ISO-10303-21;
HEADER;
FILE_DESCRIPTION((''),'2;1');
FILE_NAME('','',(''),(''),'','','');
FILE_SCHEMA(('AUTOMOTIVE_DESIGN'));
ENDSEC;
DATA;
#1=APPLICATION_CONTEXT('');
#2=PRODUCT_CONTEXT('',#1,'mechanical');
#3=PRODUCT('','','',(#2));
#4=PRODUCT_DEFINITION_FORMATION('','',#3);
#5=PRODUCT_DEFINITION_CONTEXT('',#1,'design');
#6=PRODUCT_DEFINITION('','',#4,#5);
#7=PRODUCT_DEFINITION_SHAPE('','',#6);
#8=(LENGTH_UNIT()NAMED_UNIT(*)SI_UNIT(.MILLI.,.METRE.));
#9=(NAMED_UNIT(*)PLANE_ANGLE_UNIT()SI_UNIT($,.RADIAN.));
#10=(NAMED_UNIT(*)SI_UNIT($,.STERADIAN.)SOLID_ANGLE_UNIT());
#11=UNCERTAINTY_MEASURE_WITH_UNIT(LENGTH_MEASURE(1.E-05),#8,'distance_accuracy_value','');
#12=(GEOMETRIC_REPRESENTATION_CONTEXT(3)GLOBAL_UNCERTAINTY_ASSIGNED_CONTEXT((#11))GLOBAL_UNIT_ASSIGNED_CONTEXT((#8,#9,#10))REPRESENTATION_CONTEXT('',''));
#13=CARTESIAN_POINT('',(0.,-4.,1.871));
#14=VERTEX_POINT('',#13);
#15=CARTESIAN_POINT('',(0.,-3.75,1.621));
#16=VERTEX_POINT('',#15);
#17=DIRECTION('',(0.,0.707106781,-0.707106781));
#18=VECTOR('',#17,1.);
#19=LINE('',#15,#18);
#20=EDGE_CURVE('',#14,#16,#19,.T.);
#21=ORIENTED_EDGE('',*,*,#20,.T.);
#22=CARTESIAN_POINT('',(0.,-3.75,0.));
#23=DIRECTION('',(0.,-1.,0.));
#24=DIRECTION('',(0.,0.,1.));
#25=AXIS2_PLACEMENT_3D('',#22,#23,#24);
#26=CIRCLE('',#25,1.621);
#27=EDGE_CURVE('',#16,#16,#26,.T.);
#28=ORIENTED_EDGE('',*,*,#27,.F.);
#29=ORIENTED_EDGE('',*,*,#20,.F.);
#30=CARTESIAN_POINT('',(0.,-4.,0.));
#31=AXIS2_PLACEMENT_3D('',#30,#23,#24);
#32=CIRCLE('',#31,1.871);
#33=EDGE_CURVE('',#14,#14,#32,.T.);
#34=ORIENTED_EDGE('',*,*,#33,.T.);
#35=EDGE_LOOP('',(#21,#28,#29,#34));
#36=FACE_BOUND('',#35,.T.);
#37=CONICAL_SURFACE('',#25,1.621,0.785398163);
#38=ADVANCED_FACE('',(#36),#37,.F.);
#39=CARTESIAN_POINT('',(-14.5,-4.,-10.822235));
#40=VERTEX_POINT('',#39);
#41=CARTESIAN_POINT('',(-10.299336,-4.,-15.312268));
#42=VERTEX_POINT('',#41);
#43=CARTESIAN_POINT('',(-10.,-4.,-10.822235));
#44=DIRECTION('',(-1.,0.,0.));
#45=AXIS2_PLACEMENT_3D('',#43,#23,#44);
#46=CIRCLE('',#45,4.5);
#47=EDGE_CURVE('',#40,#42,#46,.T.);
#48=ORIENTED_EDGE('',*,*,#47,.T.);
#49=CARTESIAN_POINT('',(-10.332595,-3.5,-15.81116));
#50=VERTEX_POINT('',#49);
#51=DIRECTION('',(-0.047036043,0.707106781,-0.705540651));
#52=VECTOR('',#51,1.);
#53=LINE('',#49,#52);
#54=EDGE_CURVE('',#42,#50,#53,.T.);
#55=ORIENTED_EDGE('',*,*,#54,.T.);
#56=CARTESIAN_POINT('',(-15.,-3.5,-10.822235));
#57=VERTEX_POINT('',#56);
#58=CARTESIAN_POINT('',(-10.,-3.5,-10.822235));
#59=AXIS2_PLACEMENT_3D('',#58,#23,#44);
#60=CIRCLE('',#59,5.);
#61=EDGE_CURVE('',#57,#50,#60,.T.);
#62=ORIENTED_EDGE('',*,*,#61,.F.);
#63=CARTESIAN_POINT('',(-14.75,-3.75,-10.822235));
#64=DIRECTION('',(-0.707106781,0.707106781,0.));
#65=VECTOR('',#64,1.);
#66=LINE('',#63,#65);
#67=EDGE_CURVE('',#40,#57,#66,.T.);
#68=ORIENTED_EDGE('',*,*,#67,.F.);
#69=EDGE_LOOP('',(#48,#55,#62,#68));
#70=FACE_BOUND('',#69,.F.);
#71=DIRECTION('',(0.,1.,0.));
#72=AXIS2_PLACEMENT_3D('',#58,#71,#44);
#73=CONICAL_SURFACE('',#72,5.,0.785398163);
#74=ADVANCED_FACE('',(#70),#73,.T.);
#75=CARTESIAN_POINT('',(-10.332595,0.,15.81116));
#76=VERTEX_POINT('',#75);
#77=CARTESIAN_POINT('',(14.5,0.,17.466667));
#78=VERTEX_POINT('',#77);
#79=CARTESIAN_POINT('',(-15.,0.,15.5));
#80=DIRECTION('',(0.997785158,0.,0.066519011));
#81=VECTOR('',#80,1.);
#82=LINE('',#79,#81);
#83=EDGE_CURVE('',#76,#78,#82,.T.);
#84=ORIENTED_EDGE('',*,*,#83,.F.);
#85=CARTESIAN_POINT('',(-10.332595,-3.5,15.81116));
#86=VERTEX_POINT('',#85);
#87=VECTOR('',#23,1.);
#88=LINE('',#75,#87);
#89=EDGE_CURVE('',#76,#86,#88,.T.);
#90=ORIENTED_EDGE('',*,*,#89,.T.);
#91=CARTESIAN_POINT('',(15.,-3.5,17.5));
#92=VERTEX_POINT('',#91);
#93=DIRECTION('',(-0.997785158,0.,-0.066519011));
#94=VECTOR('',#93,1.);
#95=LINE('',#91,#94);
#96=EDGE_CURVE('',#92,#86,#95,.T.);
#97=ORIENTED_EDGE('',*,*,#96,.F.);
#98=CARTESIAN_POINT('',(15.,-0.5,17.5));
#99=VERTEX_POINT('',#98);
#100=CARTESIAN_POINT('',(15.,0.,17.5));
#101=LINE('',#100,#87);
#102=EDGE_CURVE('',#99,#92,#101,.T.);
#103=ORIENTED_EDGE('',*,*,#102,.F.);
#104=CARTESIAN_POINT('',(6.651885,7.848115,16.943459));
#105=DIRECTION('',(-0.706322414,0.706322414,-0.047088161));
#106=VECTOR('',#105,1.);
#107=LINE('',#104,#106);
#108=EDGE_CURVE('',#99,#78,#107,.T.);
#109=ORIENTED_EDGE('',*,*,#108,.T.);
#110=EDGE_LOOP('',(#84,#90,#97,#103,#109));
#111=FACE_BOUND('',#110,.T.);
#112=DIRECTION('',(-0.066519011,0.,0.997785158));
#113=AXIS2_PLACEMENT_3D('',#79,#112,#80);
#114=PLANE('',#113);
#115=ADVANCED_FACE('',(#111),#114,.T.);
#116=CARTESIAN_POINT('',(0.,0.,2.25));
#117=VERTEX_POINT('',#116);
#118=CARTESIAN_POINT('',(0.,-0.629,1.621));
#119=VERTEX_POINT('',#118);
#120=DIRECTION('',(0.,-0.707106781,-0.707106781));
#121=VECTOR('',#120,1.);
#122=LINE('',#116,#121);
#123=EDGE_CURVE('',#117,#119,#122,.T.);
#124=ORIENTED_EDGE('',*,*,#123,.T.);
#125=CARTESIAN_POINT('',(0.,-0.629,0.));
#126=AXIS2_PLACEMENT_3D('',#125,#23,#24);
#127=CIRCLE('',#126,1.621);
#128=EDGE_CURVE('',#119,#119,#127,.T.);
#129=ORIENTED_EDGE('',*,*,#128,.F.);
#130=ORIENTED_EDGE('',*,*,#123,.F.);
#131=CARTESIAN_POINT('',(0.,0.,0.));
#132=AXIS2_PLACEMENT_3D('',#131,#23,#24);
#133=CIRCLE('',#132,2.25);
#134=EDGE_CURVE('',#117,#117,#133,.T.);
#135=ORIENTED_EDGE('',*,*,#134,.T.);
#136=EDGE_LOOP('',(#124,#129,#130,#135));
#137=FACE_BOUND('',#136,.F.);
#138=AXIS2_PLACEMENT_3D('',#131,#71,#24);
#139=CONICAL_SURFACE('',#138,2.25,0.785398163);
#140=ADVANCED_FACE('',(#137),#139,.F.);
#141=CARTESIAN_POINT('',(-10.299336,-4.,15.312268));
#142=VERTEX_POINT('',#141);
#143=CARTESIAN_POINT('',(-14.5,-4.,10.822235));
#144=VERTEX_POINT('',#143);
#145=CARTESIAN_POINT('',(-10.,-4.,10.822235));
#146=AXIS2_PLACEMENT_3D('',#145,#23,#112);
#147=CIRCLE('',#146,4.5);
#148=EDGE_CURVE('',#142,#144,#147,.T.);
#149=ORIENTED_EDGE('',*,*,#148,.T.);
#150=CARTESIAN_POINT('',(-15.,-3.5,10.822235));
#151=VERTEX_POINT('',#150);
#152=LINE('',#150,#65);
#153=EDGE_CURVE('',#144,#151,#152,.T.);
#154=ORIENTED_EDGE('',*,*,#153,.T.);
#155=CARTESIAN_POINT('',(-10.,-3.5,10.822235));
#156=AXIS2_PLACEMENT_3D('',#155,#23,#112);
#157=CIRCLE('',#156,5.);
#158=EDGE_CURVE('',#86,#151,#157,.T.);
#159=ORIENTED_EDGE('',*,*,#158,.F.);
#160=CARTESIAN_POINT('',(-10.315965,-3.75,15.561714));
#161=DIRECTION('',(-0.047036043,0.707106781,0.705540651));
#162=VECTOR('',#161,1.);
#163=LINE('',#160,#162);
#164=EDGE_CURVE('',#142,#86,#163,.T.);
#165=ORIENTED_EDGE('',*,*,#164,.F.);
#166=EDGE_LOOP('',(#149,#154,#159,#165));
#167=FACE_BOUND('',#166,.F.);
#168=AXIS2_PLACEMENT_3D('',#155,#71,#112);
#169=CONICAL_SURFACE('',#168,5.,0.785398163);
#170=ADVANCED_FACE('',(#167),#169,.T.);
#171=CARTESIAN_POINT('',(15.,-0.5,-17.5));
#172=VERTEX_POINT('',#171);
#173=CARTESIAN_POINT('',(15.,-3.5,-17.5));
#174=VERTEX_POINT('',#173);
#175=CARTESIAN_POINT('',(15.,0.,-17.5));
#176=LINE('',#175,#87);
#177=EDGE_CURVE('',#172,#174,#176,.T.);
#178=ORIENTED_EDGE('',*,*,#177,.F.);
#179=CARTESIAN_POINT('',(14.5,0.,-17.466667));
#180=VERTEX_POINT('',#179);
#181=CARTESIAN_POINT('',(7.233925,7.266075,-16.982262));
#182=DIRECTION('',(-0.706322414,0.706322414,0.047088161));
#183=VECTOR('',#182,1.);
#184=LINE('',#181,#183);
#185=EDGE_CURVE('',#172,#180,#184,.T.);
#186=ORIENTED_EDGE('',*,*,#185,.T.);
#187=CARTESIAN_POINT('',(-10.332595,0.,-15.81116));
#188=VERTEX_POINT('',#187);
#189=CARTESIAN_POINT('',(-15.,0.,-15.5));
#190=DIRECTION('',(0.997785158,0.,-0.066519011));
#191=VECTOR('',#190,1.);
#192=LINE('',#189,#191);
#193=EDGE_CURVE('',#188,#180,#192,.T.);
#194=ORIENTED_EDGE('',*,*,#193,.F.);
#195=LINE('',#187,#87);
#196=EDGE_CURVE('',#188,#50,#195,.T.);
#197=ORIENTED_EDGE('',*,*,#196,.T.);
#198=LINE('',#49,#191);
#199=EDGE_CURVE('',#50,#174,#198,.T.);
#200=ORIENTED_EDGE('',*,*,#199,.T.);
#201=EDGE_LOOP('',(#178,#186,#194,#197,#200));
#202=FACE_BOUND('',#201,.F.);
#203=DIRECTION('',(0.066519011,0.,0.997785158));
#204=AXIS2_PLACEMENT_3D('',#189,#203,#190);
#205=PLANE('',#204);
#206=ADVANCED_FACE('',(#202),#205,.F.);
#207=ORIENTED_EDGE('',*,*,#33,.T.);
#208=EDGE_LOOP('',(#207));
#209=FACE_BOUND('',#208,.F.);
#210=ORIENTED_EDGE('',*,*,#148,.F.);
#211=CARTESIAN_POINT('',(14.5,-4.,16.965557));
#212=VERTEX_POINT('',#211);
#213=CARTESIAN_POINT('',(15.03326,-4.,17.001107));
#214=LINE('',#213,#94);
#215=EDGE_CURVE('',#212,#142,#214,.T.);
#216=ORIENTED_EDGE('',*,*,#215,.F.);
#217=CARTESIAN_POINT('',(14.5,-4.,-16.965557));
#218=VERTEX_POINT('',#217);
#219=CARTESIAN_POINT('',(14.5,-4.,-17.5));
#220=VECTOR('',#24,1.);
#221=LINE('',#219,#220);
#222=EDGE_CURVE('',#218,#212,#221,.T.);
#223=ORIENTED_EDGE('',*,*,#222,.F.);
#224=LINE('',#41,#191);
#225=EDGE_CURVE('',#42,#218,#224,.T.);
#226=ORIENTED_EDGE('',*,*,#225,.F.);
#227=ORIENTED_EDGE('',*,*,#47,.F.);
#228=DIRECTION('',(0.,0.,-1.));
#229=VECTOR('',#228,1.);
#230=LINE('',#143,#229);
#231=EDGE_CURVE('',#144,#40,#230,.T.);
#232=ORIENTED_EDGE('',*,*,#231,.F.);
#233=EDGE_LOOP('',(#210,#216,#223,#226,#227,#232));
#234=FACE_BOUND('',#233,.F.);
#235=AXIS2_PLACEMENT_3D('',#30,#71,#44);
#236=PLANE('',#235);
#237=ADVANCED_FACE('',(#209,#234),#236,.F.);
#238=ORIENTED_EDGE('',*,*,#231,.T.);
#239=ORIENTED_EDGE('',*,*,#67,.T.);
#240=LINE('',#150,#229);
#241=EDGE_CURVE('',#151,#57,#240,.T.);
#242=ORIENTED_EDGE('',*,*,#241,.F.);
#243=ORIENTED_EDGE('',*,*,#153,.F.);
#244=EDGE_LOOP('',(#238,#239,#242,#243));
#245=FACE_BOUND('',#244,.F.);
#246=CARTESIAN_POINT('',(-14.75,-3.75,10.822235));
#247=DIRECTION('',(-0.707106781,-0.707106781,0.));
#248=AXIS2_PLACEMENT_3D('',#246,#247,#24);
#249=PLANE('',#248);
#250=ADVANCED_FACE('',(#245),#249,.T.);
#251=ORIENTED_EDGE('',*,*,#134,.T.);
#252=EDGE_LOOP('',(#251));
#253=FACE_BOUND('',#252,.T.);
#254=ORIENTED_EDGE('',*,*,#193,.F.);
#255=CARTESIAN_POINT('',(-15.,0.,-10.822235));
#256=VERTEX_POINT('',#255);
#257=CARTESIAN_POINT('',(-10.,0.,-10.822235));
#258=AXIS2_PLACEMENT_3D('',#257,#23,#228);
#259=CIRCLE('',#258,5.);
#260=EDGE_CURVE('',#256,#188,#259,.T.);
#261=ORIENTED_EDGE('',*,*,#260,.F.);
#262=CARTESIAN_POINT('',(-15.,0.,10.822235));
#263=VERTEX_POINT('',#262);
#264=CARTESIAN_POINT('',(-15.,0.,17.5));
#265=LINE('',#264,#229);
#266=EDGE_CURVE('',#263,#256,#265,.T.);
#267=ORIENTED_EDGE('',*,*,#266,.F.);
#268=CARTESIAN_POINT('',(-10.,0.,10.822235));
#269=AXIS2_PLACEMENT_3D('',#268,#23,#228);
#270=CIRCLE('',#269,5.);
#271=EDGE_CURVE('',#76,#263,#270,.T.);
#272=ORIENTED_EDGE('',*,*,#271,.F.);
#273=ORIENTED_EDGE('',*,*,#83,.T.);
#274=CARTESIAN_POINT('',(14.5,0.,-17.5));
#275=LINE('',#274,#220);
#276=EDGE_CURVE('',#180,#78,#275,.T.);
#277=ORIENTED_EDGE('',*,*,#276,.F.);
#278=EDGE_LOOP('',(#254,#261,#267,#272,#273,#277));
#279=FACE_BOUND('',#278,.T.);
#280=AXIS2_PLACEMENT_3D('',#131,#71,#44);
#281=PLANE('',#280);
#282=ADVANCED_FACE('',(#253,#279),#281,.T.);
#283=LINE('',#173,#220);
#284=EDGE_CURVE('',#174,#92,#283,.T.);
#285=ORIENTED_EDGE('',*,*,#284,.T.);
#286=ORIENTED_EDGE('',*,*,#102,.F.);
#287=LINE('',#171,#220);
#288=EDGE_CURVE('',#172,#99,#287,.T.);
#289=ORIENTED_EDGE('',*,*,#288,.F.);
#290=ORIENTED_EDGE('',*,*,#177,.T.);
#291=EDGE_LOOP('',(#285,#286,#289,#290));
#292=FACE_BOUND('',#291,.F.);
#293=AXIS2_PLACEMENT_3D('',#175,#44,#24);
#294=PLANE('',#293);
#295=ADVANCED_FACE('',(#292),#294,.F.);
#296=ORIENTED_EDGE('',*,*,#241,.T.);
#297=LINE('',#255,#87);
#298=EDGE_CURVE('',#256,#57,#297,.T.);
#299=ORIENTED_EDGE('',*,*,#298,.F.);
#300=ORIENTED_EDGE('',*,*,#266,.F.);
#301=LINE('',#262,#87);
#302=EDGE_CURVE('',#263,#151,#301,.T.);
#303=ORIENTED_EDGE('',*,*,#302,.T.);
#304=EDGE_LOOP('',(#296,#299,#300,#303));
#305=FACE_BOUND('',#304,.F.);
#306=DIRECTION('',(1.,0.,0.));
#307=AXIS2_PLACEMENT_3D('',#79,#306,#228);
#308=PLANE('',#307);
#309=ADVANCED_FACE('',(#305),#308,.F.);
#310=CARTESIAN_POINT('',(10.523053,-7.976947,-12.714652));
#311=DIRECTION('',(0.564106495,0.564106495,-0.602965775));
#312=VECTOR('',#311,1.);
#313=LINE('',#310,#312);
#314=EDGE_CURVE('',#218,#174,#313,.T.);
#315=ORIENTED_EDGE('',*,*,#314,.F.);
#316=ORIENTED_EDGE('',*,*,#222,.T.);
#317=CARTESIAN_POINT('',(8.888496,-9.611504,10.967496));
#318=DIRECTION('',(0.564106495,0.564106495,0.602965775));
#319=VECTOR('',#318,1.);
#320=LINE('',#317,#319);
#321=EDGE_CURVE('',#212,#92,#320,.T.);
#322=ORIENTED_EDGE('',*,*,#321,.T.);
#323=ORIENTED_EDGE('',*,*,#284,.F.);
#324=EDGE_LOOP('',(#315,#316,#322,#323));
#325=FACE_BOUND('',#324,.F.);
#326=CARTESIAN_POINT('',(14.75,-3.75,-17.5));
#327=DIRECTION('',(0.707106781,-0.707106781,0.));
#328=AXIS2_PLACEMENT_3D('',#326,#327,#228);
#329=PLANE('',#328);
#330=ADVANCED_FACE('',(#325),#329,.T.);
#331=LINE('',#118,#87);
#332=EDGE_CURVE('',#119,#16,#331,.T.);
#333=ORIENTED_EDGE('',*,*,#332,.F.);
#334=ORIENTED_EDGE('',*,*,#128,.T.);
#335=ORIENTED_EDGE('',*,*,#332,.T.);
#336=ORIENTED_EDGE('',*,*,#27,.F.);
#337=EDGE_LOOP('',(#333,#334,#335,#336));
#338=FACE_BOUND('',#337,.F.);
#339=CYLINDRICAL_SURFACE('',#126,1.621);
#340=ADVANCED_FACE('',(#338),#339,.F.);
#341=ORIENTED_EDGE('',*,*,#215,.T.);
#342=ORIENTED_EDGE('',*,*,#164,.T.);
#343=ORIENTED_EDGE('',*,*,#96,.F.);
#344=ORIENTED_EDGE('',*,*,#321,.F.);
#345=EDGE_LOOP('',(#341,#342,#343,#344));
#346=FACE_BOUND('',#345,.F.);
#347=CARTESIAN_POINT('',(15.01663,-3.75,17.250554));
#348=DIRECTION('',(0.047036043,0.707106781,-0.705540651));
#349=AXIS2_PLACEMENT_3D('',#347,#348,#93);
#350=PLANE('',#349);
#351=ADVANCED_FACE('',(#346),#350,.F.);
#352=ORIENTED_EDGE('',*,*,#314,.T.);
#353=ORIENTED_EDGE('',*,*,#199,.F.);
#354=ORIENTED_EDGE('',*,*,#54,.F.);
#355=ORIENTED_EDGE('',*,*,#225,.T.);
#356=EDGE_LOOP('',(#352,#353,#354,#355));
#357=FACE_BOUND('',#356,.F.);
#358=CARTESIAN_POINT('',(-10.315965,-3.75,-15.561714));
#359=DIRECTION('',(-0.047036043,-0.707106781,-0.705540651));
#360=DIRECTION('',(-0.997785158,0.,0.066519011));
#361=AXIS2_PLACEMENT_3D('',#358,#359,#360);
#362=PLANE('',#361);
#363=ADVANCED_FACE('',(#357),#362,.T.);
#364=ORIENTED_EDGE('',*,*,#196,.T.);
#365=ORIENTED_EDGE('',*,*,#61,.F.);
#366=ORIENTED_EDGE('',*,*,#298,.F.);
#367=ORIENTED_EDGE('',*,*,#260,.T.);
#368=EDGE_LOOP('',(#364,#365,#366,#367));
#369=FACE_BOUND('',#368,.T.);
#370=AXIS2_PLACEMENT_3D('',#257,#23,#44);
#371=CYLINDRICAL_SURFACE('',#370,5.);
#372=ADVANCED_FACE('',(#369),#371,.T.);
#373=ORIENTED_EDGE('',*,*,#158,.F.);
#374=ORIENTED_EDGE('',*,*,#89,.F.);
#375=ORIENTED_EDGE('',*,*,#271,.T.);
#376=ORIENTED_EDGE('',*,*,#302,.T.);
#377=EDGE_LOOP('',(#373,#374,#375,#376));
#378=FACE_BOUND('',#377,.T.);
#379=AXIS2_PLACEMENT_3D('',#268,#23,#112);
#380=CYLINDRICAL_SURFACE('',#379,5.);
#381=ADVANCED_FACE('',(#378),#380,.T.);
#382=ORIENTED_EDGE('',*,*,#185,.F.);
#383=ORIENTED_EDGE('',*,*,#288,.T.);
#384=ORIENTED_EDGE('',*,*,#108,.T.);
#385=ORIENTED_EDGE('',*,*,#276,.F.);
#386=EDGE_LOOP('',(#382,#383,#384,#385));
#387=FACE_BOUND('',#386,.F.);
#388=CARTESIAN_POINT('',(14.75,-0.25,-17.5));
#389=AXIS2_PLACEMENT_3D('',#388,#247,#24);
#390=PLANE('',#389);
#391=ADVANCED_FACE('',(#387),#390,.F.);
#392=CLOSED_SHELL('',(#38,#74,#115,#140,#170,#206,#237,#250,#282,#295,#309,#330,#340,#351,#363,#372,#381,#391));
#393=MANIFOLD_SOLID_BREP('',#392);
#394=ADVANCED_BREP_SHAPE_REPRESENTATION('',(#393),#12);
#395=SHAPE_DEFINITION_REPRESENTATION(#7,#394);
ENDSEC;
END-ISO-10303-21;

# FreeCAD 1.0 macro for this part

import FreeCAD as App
import Part
import Sketcher

V = App.Vector


def edges_at(feature, points):
    """Names of the edges that pass closest to the given points."""
    edges = feature.Shape.Edges
    near = lambda p: min(range(len(edges)), key=lambda i: edges[i].distToShape(Part.Vertex(*p))[0])
    return sorted({f"Edge{near(p) + 1}" for p in points})


def add_polygon(sketch, points):
    """Adds a closed chain of lines whose ends are joined by coincident constraints."""
    first, n = sketch.GeometryCount, len(points)
    for a, b in zip(points, points[1:] + points[:1]):
        sketch.addGeometry(Part.LineSegment(App.Vector(*a, 0), App.Vector(*b, 0)), False)
    for i in range(n):
        sketch.addConstraint(Sketcher.Constraint("Coincident", first + i, 2, first + (i + 1) % n, 1))

doc = App.newDocument("Part")
params = doc.addObject("Spreadsheet::Sheet", "Params")
for row, (alias, value) in enumerate([
    ("sketch1_height", "35 mm"),
    ("sketch1_height2", "31 mm"),
    ("pad1_length", "4 mm"),
    ("hole_diameter", "3.242 mm"),
    ("hole_csink_diameter", "4.5 mm"),
    ("chamfer_size", "0.25 mm"),
    ("fillet_radius", "5 mm"),
    ("chamfer2_size", "0.5 mm"),
], start=1):
    params.set(f"A{row}", alias)
    params.set(f"B{row}", "=" + value)
    params.setAlias(f"B{row}", alias)

body = doc.addObject("PartDesign::Body", "Body")

# Sketch on XZ plane
sketch1 = body.newObject("Sketcher::SketchObject", "Sketch")
sketch1.AttachmentSupport = (doc.getObject("XZ_Plane"), [""])
sketch1.MapMode = "FlatFace"
add_polygon(sketch1, [(-15, 16), (15, 18), (15, -18), (-15, -16)])  # lines 0-3
sketch1.addConstraint(Sketcher.Constraint("Vertical", 1))
sketch1.addConstraint(Sketcher.Constraint("Vertical", 3))
sketch1.addConstraint(Sketcher.Constraint("Equal", 0, 2))
sketch1.addConstraint(Sketcher.Constraint("DistanceY", 1, 2, 1, 1, 35.0))
sketch1.addConstraint(Sketcher.Constraint("DistanceY", 3, 1, 3, 2, 31.0))
sketch1.addConstraint(Sketcher.Constraint("DistanceX", 2, 2, 1, 2, 30.0))
sketch1.addConstraint(Sketcher.Constraint("DistanceX", -1, 1, 0, 2, 15.0))
sketch1.addConstraint(Sketcher.Constraint("DistanceY", -1, 1, 0, 2, 17.5))
sketch1.setExpression("Constraints[7]", "Params.sketch1_height")
sketch1.setExpression("Constraints[8]", "Params.sketch1_height2")
pad1 = body.newObject("PartDesign::Pad", "Pad")
pad1.Profile = sketch1
pad1.setExpression("Length", "Params.pad1_length")

# Sketch on XZ plane
sketch2 = body.newObject("Sketcher::SketchObject", "Sketch001")
sketch2.AttachmentSupport = (doc.getObject("XZ_Plane"), [""])
sketch2.MapMode = "FlatFace"
sketch2.addGeometry(Part.Circle(V(0, 0, 0), V(0, 0, 1), 1.6), False)
sketch2.addConstraint(Sketcher.Constraint("Coincident", 0, 3, -1, 1))
sketch2.addConstraint(Sketcher.Constraint("Diameter", 0, 3.242))
doc.recompute()
hole = body.newObject("PartDesign::Hole", "Hole")
hole.Profile = sketch2
hole.ThreadType = "None"
hole.setExpression("Diameter", "Params.hole_diameter")
hole.DepthType = "ThroughAll"
hole.HoleCutType = "Countersink"
hole.setExpression("HoleCutDiameter", "Params.hole_csink_diameter")
hole.HoleCutCountersinkAngle = 90
hole.Reversed = True
doc.recompute()

chamfer = body.newObject("PartDesign::Chamfer", "Chamfer")
chamfer.Base = (hole, edges_at(hole, [(0, -4, -1.621)]))
chamfer.setExpression("Size", "Params.chamfer_size")
doc.recompute()

fillet = body.newObject("PartDesign::Fillet", "Fillet")
fillet.Base = (chamfer, edges_at(chamfer, [(-15, -2, 15.5), (-15, -2, -15.5)]))
fillet.setExpression("Radius", "Params.fillet_radius")
doc.recompute()

chamfer2 = body.newObject("PartDesign::Chamfer", "Chamfer001")
chamfer2.Base = (fillet, edges_at(fillet, [
    (15, 0, 0),
    (-13.651, -4, 14.238),
    (-13.651, -4, -14.238),
    (-15, -4, 0),
    (15, -4, 0),
]))
chamfer2.setExpression("Size", "Params.chamfer2_size")

doc.recompute()
